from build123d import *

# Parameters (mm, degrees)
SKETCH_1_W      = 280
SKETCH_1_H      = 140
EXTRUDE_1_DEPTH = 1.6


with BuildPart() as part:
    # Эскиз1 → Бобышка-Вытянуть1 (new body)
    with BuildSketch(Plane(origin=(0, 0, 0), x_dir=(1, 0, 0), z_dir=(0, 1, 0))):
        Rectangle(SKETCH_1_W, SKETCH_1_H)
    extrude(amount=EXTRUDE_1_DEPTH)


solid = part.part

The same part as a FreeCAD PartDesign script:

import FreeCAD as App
import Part
import Sketcher


def add_polygon(sketch, points):
    """Adds a closed chain of lines whose ends are joined by coincident constraints."""
    first, n = sketch.GeometryCount, len(points)
    for a, b in zip(points, points[1:] + points[:1]):
        sketch.addGeometry(Part.LineSegment(App.Vector(*a, 0), App.Vector(*b, 0)), False)
    for i in range(n):
        sketch.addConstraint(Sketcher.Constraint("Coincident", first + i, 2, first + (i + 1) % n, 1))

doc = App.newDocument("Part")
body = doc.addObject("PartDesign::Body", "Body")

sketch1 = body.newObject("Sketcher::SketchObject", "Sketch")
sketch1.AttachmentSupport = (doc.getObject("XZ_Plane"), [""])
sketch1.MapMode = "FlatFace"
add_polygon(sketch1, [(-140, -70), (-140, 70), (140, 70), (140, -70)])
sketch1.addConstraint(Sketcher.Constraint("Vertical", 0))
sketch1.addConstraint(Sketcher.Constraint("Horizontal", 1))
sketch1.addConstraint(Sketcher.Constraint("Vertical", 2))
sketch1.addConstraint(Sketcher.Constraint("Horizontal", 3))
sketch1.addConstraint(Sketcher.Constraint("Symmetric", 0, 2, 2, 2, -1, 1))
sketch1.addConstraint(Sketcher.Constraint("DistanceX", 1, 1, 1, 2, 280.0))
sketch1.addConstraint(Sketcher.Constraint("DistanceY", 0, 1, 0, 2, 140.0))
pad1 = body.newObject("PartDesign::Pad", "Pad")
pad1.Profile = sketch1
pad1.Length = 1.6
pad1.Reversed = True

doc.recompute()
